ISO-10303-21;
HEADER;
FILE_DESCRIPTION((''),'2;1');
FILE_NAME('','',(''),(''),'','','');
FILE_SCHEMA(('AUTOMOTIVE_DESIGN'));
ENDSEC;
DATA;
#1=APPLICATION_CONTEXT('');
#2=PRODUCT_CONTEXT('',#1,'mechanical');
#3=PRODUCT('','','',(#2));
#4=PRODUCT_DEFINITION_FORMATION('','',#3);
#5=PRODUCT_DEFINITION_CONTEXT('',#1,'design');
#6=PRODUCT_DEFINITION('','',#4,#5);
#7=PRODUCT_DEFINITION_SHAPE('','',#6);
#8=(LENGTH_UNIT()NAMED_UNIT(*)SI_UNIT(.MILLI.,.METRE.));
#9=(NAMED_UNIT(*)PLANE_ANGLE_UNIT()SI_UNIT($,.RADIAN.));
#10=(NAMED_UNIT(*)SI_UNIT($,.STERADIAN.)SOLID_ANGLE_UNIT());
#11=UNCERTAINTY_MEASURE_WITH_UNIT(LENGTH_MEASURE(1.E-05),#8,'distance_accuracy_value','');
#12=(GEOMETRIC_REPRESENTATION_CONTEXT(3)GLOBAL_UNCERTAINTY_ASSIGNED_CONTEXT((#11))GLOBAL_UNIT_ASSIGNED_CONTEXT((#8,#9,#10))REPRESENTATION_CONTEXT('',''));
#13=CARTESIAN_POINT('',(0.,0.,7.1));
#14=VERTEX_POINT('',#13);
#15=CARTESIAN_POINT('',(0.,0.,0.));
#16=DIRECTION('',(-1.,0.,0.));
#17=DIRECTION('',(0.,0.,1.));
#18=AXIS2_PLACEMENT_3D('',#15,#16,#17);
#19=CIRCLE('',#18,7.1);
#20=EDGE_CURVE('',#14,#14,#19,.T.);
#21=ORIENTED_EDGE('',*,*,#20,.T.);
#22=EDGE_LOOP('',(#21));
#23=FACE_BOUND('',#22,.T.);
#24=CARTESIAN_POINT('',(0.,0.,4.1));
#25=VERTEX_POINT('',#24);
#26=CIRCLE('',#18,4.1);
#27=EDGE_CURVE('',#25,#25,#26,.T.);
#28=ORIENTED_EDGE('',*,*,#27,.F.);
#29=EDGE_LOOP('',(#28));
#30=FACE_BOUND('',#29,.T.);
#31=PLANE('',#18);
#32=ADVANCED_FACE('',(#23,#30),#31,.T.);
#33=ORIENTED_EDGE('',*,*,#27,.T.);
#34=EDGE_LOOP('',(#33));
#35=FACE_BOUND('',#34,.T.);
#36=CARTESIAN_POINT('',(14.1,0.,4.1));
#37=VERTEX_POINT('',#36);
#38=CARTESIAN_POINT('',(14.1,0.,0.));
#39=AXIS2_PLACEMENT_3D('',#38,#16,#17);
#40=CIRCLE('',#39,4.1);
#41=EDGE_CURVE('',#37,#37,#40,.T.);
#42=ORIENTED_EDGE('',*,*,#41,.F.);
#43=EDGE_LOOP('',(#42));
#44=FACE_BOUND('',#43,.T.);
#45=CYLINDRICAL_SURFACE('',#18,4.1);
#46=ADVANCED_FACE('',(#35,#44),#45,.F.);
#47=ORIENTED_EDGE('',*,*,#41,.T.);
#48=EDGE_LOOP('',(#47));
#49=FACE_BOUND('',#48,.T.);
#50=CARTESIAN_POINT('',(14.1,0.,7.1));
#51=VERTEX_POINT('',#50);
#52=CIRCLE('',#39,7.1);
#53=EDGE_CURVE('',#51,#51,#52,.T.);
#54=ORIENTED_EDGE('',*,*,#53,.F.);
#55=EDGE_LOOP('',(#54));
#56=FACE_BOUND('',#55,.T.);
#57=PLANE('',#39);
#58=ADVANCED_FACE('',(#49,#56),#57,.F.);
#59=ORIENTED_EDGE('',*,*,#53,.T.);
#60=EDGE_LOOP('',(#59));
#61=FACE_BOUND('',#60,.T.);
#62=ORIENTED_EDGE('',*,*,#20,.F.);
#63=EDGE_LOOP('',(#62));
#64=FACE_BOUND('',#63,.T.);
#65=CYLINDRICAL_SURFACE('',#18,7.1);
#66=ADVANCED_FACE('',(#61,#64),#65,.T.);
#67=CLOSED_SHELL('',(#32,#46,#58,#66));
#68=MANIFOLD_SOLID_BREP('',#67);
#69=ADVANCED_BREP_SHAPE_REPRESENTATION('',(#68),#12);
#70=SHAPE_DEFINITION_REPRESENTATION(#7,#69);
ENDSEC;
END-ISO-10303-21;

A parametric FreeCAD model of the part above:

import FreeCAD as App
import Part
import Sketcher
from FreeCAD import Vector
Q = App.Units.Quantity


def add_polygon(sketch, points):
    """Adds a closed chain of lines whose ends are joined by coincident constraints."""
    first, n = sketch.GeometryCount, len(points)
    for a, b in zip(points, points[1:] + points[:1]):
        sketch.addGeometry(Part.LineSegment(App.Vector(*a, 0), App.Vector(*b, 0)), False)
    for i in range(n):
        sketch.addConstraint(Sketcher.Constraint("Coincident", first + i, 2, first + (i + 1) % n, 1))

doc = App.newDocument("Part")
params = doc.addObject("Spreadsheet::Sheet", "Params")
for row, (alias, value) in enumerate([
    ("sketch1_height", "3 mm"),
    ("sketch1_width", "14.1 mm"),
    ("revolution_angle", "360 deg"),
], start=1):
    params.set(f"A{row}", alias)
    params.set(f"B{row}", "=" + value)
    params.setAlias(f"B{row}", alias)

body = doc.addObject("PartDesign::Body", "Body")

# Sketch on XZ plane
sketch1 = body.newObject("Sketcher::SketchObject", "Sketch")
sketch1.AttachmentSupport = (doc.getObject("XZ_Plane"), [""])
sketch1.MapMode = "FlatFace"
add_polygon(sketch1, [(0, 4.1), (0, 7.1), (14.1, 7.1), (14.1, 4.1)])  # lines 0-3
sketch1.addConstraint([
    Sketcher.Constraint("Vertical", 0),
    Sketcher.Constraint("Horizontal", 1),
    Sketcher.Constraint("Vertical", 2),
    Sketcher.Constraint("Horizontal", 3),
    Sketcher.Constraint("PointOnObject", 0, 2, -2),
    Sketcher.Constraint("DistanceY", 0, 1, 0, 2, Q("3 mm")),
    Sketcher.Constraint("DistanceX", 1, 1, 1, 2, Q("14.1 mm")),
    Sketcher.Constraint("DistanceY", -1, 1, 0, 2, Q("7.1 mm")),
])
sketch1.setExpression("Constraints[9]", "Params.sketch1_height")
sketch1.setExpression("Constraints[10]", "Params.sketch1_width")
revolution = body.newObject("PartDesign::Revolution", "Revolution")
revolution.Profile = sketch1
revolution.ReferenceAxis = (sketch1, ["H_Axis"])
revolution.setExpression("Angle", "Params.revolution_angle")

doc.recompute()
